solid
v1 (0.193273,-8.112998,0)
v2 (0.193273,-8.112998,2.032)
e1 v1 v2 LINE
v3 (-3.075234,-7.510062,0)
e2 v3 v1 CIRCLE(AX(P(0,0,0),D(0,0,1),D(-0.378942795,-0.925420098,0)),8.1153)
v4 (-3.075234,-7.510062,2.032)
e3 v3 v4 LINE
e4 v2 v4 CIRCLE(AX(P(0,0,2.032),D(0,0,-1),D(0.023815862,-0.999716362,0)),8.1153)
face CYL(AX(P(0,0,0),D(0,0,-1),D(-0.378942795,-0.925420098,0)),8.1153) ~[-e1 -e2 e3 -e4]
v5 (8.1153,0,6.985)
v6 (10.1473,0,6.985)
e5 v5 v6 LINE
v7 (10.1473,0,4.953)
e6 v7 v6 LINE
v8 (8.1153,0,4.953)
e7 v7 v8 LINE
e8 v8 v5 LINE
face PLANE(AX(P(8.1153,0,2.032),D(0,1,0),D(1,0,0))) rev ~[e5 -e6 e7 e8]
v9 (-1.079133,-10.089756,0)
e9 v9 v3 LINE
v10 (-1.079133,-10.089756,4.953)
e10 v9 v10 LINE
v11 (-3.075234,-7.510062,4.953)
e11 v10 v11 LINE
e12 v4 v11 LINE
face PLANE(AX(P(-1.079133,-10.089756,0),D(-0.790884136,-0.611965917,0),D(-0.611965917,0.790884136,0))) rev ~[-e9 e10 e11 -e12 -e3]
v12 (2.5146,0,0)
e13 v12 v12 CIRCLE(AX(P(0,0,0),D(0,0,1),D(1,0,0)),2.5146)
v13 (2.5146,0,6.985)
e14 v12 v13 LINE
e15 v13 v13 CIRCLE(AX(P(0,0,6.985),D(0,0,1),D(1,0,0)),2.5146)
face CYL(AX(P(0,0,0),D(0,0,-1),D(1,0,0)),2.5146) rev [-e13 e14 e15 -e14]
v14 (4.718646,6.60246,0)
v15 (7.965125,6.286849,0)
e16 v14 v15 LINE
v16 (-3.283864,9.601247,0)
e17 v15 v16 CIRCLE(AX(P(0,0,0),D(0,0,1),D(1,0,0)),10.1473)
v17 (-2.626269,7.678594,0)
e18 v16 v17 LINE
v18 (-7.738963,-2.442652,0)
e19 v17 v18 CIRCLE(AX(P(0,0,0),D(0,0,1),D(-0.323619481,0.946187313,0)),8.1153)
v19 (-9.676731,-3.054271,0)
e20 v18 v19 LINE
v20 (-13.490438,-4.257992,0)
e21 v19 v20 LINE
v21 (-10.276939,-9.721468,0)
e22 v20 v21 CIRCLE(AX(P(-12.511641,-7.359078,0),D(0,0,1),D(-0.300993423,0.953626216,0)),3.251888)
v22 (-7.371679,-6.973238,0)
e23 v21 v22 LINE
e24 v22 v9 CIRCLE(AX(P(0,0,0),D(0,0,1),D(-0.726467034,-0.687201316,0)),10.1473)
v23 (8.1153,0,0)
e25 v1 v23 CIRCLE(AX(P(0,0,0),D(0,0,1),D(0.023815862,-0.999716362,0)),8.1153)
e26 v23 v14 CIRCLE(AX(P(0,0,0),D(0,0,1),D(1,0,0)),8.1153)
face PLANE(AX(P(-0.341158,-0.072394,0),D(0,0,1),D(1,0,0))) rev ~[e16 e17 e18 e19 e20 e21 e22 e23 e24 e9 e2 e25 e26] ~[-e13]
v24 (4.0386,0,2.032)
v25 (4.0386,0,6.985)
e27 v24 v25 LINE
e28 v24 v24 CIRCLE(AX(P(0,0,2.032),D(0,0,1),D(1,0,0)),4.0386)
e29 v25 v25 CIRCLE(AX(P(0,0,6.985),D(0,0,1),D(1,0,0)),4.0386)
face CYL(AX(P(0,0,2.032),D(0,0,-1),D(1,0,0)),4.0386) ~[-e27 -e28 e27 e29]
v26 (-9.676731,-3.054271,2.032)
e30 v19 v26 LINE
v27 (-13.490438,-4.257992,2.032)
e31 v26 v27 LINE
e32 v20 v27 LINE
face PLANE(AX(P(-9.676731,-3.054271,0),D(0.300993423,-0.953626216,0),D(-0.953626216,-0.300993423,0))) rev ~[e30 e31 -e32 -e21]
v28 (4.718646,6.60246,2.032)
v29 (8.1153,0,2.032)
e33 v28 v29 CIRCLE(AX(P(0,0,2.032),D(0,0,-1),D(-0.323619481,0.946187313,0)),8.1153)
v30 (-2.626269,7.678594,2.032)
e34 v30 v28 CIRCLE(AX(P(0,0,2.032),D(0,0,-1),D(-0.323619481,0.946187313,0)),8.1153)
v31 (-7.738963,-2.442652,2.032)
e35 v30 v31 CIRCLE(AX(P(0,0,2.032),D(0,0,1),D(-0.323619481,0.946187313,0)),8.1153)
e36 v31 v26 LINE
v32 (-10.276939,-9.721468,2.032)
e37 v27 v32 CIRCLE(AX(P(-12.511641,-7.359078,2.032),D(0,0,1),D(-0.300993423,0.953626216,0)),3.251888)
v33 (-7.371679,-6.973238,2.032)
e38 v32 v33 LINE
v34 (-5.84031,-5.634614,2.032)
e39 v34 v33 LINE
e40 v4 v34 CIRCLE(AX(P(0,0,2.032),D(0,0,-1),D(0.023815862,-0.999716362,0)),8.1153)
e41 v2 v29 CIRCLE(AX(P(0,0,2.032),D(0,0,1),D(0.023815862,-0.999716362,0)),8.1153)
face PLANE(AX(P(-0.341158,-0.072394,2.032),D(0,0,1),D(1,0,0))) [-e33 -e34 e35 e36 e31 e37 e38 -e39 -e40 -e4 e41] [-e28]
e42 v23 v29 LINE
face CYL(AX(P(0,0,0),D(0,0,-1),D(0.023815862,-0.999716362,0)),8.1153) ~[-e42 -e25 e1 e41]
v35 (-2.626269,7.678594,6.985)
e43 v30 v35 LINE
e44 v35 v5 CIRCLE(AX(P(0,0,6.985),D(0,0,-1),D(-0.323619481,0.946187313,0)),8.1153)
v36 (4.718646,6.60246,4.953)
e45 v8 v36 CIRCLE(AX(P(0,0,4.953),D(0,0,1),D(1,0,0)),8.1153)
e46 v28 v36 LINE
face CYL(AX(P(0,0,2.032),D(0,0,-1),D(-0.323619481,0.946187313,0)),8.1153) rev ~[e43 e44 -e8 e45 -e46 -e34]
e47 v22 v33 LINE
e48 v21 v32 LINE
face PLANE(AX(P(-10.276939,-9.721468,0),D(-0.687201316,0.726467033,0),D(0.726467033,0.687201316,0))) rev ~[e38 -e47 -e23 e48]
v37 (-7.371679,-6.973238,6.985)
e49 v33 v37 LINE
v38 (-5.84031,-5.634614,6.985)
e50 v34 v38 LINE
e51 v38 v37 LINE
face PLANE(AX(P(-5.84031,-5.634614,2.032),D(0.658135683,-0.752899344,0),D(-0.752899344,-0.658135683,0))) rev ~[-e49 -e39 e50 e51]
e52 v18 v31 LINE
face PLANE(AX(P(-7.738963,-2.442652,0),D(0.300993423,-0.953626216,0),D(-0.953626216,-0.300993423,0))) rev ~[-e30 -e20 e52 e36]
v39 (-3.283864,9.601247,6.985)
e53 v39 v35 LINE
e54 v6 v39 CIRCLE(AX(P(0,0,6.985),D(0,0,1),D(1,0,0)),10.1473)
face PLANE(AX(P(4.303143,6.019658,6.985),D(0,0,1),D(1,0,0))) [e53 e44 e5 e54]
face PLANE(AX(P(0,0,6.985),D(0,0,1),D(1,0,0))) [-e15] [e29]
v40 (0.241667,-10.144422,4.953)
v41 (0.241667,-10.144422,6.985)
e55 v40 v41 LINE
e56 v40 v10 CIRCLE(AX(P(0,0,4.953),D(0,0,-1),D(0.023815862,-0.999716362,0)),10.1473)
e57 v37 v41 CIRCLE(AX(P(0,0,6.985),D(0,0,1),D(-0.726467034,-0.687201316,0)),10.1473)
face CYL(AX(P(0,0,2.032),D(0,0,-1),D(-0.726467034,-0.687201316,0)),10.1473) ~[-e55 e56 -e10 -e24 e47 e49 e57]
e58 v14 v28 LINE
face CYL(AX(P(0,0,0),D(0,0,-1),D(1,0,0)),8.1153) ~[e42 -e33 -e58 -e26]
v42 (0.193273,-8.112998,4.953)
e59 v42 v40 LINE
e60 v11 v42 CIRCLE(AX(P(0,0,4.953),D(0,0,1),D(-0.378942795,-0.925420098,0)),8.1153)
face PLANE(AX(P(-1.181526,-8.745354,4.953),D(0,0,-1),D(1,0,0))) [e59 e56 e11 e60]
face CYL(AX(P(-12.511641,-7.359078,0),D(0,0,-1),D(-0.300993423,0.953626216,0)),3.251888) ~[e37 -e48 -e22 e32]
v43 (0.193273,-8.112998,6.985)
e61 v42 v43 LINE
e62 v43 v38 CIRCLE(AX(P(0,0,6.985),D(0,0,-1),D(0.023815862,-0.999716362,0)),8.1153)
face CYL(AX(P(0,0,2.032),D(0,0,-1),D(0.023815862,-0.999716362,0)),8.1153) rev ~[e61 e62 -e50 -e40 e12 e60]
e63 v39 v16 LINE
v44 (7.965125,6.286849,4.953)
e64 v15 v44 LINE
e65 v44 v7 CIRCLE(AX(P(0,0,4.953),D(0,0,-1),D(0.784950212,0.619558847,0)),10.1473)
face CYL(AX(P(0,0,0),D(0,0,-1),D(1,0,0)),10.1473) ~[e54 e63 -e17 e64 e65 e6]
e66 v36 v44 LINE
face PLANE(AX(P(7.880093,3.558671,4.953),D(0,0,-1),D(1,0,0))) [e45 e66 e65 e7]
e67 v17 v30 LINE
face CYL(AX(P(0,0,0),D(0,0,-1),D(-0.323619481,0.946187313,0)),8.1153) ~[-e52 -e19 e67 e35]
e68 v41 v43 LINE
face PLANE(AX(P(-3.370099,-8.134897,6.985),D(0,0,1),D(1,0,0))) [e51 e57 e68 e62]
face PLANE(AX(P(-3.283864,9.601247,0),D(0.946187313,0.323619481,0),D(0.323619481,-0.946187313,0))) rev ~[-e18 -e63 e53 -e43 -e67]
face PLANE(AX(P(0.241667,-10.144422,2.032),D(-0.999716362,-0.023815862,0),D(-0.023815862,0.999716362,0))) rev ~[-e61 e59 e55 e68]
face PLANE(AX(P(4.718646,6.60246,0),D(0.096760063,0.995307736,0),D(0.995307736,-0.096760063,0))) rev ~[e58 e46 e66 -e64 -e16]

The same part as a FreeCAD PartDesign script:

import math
import FreeCAD as App
import Part
import Sketcher
from FreeCAD import Vector
Q = App.Units.Quantity

doc = App.newDocument("Part")
body = doc.addObject("PartDesign::Body", "Body")

# Sketch on XY plane
sketch1 = body.newObject("Sketcher::SketchObject", "Sketch")
sketch1.AttachmentSupport = (doc.getObject("XY_Plane"), [""])
sketch1.MapMode = "FlatFace"
sketch1.addGeometry(Part.ArcOfCircle(Part.Circle(Vector(0, 0, 0), Vector(0, 0, 1), 8.1153), math.radians(-88.635323), math.radians(0)), False)
sketch1.addGeometry(Part.LineSegment(Vector(8.1153, 0, 0), Vector(10.1473, 0, 0)), False)
sketch1.addGeometry(Part.ArcOfCircle(Part.Circle(Vector(0, 0, 0), Vector(0, 0, 1), 10.1473), math.radians(0), math.radians(108.881958)), False)
sketch1.addGeometry(Part.LineSegment(Vector(-3.283864, 9.601247, 0), Vector(-2.626269, 7.678594, 0)), False)
sketch1.addGeometry(Part.ArcOfCircle(Part.Circle(Vector(0, 0, 0), Vector(0, 0, 1), 8.1153), math.radians(108.881958), math.radians(197.51728)), False)
sketch1.addGeometry(Part.LineSegment(Vector(-7.738963, -2.442652, 0), Vector(-9.676731, -3.054271, 0)), False)
sketch1.addGeometry(Part.LineSegment(Vector(-9.676731, -3.054271, 0), Vector(-13.490438, -4.257992, 0)), False)
sketch1.addGeometry(Part.ArcOfCircle(Part.Circle(Vector(-12.511641, -7.359078, 0), Vector(0, 0, 1), 3.251888), math.radians(107.51728), math.radians(313.408975)), False)
sketch1.addGeometry(Part.LineSegment(Vector(-10.276939, -9.721468, 0), Vector(-7.371679, -6.973238, 0)), False)
sketch1.addGeometry(Part.ArcOfCircle(Part.Circle(Vector(0, 0, 0), Vector(0, 0, 1), 10.1473), math.radians(-136.591025), math.radians(-88.635323)), False)
sketch1.addGeometry(Part.LineSegment(Vector(0.241667, -10.144422, 0), Vector(0.193273, -8.112998, 0)), False)
sketch1.addGeometry(Part.Circle(Vector(0, 0, 0), Vector(0, 0, 1), 2.5146), False)
sketch1.addConstraint(Sketcher.Constraint("Coincident", 0, 2, 1, 1))
sketch1.addConstraint(Sketcher.Constraint("Coincident", 1, 2, 2, 1))
sketch1.addConstraint(Sketcher.Constraint("Coincident", 2, 2, 3, 1))
sketch1.addConstraint(Sketcher.Constraint("Coincident", 3, 2, 4, 1))
sketch1.addConstraint(Sketcher.Constraint("Coincident", 4, 2, 5, 1))
sketch1.addConstraint(Sketcher.Constraint("Coincident", 5, 2, 6, 1))
sketch1.addConstraint(Sketcher.Constraint("Tangent", 6, 2, 7, 1))
sketch1.addConstraint(Sketcher.Constraint("Tangent", 7, 2, 8, 1))
sketch1.addConstraint(Sketcher.Constraint("Coincident", 8, 2, 9, 1))
sketch1.addConstraint(Sketcher.Constraint("Coincident", 9, 2, 10, 1))
sketch1.addConstraint(Sketcher.Constraint("Coincident", 10, 2, 0, 1))
sketch1.addConstraint(Sketcher.Constraint("Horizontal", 1))
sketch1.addConstraint(Sketcher.Constraint("Coincident", 0, 3, -1, 1))
sketch1.addConstraint(Sketcher.Constraint("Coincident", 2, 3, -1, 1))
sketch1.addConstraint(Sketcher.Constraint("Coincident", 4, 3, -1, 1))
sketch1.addConstraint(Sketcher.Constraint("Coincident", 9, 3, -1, 1))
sketch1.addConstraint(Sketcher.Constraint("Coincident", 11, 3, -1, 1))
sketch1.addConstraint(Sketcher.Constraint("Equal", 0, 4))
sketch1.addConstraint(Sketcher.Constraint("Equal", 2, 9))
sketch1.addConstraint(Sketcher.Constraint("PointOnObject", 0, 2, -1))
sketch1.addConstraint(Sketcher.Constraint("Parallel", 5, 6))
sketch1.addConstraint(Sketcher.Constraint("Equal", 3, 5))
sketch1.addConstraint(Sketcher.Constraint("Equal", 6, 8))
sketch1.addConstraint(Sketcher.Constraint("Diameter", 11, Q("0.198 in")))
sketch1.addConstraint(Sketcher.Constraint("DistanceX", 1, 1, 1, 2, Q("0.08 in")))
sketch1.addConstraint(Sketcher.Constraint("Radius", 0, Q("0.3195 in")))
sketch1.addConstraint(Sketcher.Constraint("Radius", 7, Q("3.251888 mm")))
sketch1.addConstraint(Sketcher.Constraint("DistanceY", 10, 2, -1, 1, Q("8.112998 mm")))
sketch1.addConstraint(Sketcher.Constraint("DistanceX", 7, 3, 7, 2, Q("2.234702 mm")))
sketch1.addConstraint(Sketcher.Constraint("DistanceX", 6, 2, 7, 2, Q("3.213499 mm")))
sketch1.addConstraint(Sketcher.Constraint("DistanceX", 7, 3, -1, 1, Q("12.511641 mm")))
sketch1.addConstraint(Sketcher.Constraint("DistanceX", 3, 2, -1, 1, Q("2.626269 mm")))
sketch1.addConstraint(Sketcher.Constraint("DistanceY", 9, 2, -1, 1, Q("10.144422 mm")))
sketch1.addConstraint(Sketcher.Constraint("DistanceX", 2, 2, -1, 1, Q("3.283864 mm")))
pad1 = body.newObject("PartDesign::Pad", "Pad")
pad1.Profile = sketch1
pad1.Length = Q("0.08 in")

# Sketch on XY plane
sketch2 = body.newObject("Sketcher::SketchObject", "Sketch001")
sketch2.AttachmentSupport = (doc.getObject("XY_Plane"), [""])
sketch2.MapMode = "FlatFace"
sketch2.AttachmentOffset = App.Placement(Vector(0, 0, 0.08 * 25.4), App.Rotation())
sketch2.addGeometry(Part.LineSegment(Vector(-5.84031, -5.634614, 0), Vector(-7.371679, -6.973238, 0)), False)
sketch2.addGeometry(Part.ArcOfCircle(Part.Circle(Vector(0, 0, 0), Vector(0, 0, 1), 10.1473), math.radians(-136.591025), math.radians(-88.635323)), False)
sketch2.addGeometry(Part.LineSegment(Vector(0.241667, -10.144422, 0), Vector(0.193273, -8.112998, 0)), False)
sketch2.addGeometry(Part.ArcOfCircle(Part.Circle(Vector(0, 0, 0), Vector(0, 0, 1), 8.1153), math.radians(-136.026953), math.radians(-88.635323)), False)
sketch2.addGeometry(Part.Circle(Vector(0, 0, 0), Vector(0, 0, 1), 4.0386), False)
sketch2.addGeometry(Part.Circle(Vector(0, 0, 0), Vector(0, 0, 1), 2.5146), False)
sketch2.addGeometry(Part.ArcOfCircle(Part.Circle(Vector(0, 0, 0), Vector(0, 0, 1), 8.1153), math.radians(0), math.radians(108.881958)), False)
sketch2.addGeometry(Part.LineSegment(Vector(8.1153, 0, 0), Vector(10.1473, 0, 0)), False)
sketch2.addGeometry(Part.ArcOfCircle(Part.Circle(Vector(0, 0, 0), Vector(0, 0, 1), 10.1473), math.radians(0), math.radians(108.881958)), False)
sketch2.addGeometry(Part.LineSegment(Vector(-3.283864, 9.601247, 0), Vector(-2.626269, 7.678594, 0)), False)
sketch2.addConstraint(Sketcher.Constraint("Coincident", 0, 2, 1, 1))
sketch2.addConstraint(Sketcher.Constraint("Coincident", 1, 2, 2, 1))
sketch2.addConstraint(Sketcher.Constraint("Coincident", 2, 2, 3, 2))
sketch2.addConstraint(Sketcher.Constraint("Coincident", 3, 1, 0, 1))
sketch2.addConstraint(Sketcher.Constraint("Coincident", 6, 1, 7, 1))
sketch2.addConstraint(Sketcher.Constraint("Coincident", 7, 2, 8, 1))
sketch2.addConstraint(Sketcher.Constraint("Coincident", 8, 2, 9, 1))
sketch2.addConstraint(Sketcher.Constraint("Coincident", 9, 2, 6, 2))
sketch2.addConstraint(Sketcher.Constraint("Horizontal", 7))
sketch2.addConstraint(Sketcher.Constraint("Coincident", 1, 3, -1, 1))
sketch2.addConstraint(Sketcher.Constraint("Coincident", 3, 3, -1, 1))
sketch2.addConstraint(Sketcher.Constraint("Coincident", 4, 3, -1, 1))
sketch2.addConstraint(Sketcher.Constraint("Coincident", 5, 3, -1, 1))
sketch2.addConstraint(Sketcher.Constraint("Coincident", 6, 3, -1, 1))
sketch2.addConstraint(Sketcher.Constraint("Coincident", 8, 3, -1, 1))
sketch2.addConstraint(Sketcher.Constraint("Equal", 3, 6))
sketch2.addConstraint(Sketcher.Constraint("Equal", 1, 8))
sketch2.addConstraint(Sketcher.Constraint("PointOnObject", 6, 1, -1))
sketch2.addConstraint(Sketcher.Constraint("Diameter", 4, Q("0.318 in")))
sketch2.addConstraint(Sketcher.Constraint("Diameter", 5, Q("0.198 in")))
sketch2.addConstraint(Sketcher.Constraint("DistanceX", 7, 1, 7, 2, Q("0.08 in")))
sketch2.addConstraint(Sketcher.Constraint("Radius", 1, Q("0.3995 in")))
sketch2.addConstraint(Sketcher.Constraint("DistanceY", 2, 2, -1, 1, Q("8.112998 mm")))
sketch2.addConstraint(Sketcher.Constraint("DistanceX", 0, 2, -1, 1, Q("7.371679 mm")))
sketch2.addConstraint(Sketcher.Constraint("DistanceY", 1, 2, -1, 1, Q("10.144422 mm")))
sketch2.addConstraint(Sketcher.Constraint("DistanceX", 3, 1, -1, 1, Q("5.84031 mm")))
sketch2.addConstraint(Sketcher.Constraint("DistanceX", 9, 2, -1, 1, Q("2.626269 mm")))
sketch2.addConstraint(Sketcher.Constraint("DistanceX", 8, 2, -1, 1, Q("3.283864 mm")))
pad2 = body.newObject("PartDesign::Pad", "Pad001")
pad2.Profile = sketch2
pad2.Length = Q("0.195 in")

# Sketch on XY plane
sketch3 = body.newObject("Sketcher::SketchObject", "Sketch002")
sketch3.AttachmentSupport = (doc.getObject("XY_Plane"), [""])
sketch3.MapMode = "FlatFace"
sketch3.addGeometry(Part.ArcOfCircle(Part.Circle(Vector(0, 0, 0), Vector(0, 0, 1), 8.1153), math.radians(-112.268212), math.radians(-88.635323)), False)
sketch3.addGeometry(Part.LineSegment(Vector(0.193273, -8.112998, 0), Vector(0.241667, -10.144422, 0)), False)
sketch3.addGeometry(Part.ArcOfCircle(Part.Circle(Vector(0, 0, 0), Vector(0, 0, 1), 10.1473), math.radians(-96.104769), math.radians(-88.635323)), False)
sketch3.addGeometry(Part.LineSegment(Vector(-1.079133, -10.089756, 0), Vector(-3.075234, -7.510062, 0)), False)
sketch3.addGeometry(Part.ArcOfCircle(Part.Circle(Vector(0, 0, 0), Vector(0, 0, 1), 10.1473), math.radians(0), math.radians(38.283926)), False)
sketch3.addGeometry(Part.LineSegment(Vector(10.1473, 0, 0), Vector(8.1153, 0, 0)), False)
sketch3.addGeometry(Part.ArcOfCircle(Part.Circle(Vector(0, 0, 0), Vector(0, 0, 1), 8.1153), math.radians(0), math.radians(54.447369)), False)
sketch3.addGeometry(Part.LineSegment(Vector(4.718646, 6.60246, 0), Vector(7.965125, 6.286849, 0)), False)
sketch3.addConstraint(Sketcher.Constraint("Coincident", 0, 2, 1, 1))
sketch3.addConstraint(Sketcher.Constraint("Coincident", 1, 2, 2, 2))
sketch3.addConstraint(Sketcher.Constraint("Coincident", 2, 1, 3, 1))
sketch3.addConstraint(Sketcher.Constraint("Coincident", 3, 2, 0, 1))
sketch3.addConstraint(Sketcher.Constraint("Coincident", 4, 1, 5, 1))
sketch3.addConstraint(Sketcher.Constraint("Coincident", 5, 2, 6, 1))
sketch3.addConstraint(Sketcher.Constraint("Coincident", 6, 2, 7, 1))
sketch3.addConstraint(Sketcher.Constraint("Coincident", 7, 2, 4, 2))
sketch3.addConstraint(Sketcher.Constraint("Horizontal", 5))
sketch3.addConstraint(Sketcher.Constraint("Coincident", 0, 3, -1, 1))
sketch3.addConstraint(Sketcher.Constraint("Coincident", 2, 3, -1, 1))
sketch3.addConstraint(Sketcher.Constraint("Coincident", 4, 3, -1, 1))
sketch3.addConstraint(Sketcher.Constraint("Coincident", 6, 3, -1, 1))
sketch3.addConstraint(Sketcher.Constraint("Equal", 2, 4))
sketch3.addConstraint(Sketcher.Constraint("Equal", 0, 6))
sketch3.addConstraint(Sketcher.Constraint("PointOnObject", 4, 1, -1))
sketch3.addConstraint(Sketcher.Constraint("Equal", 3, 7))
sketch3.addConstraint(Sketcher.Constraint("DistanceX", 5, 2, 5, 1, Q("0.08 in")))
sketch3.addConstraint(Sketcher.Constraint("Radius", 0, Q("0.3195 in")))
sketch3.addConstraint(Sketcher.Constraint("DistanceX", 2, 1, 1, 2, Q("0.052 in")))
sketch3.addConstraint(Sketcher.Constraint("DistanceY", 0, 2, -1, 1, Q("8.112998 mm")))
sketch3.addConstraint(Sketcher.Constraint("DistanceX", 3, 2, 2, 1, Q("1.996101 mm")))
sketch3.addConstraint(Sketcher.Constraint("DistanceY", 1, 2, -1, 1, Q("10.144422 mm")))
sketch3.addConstraint(Sketcher.Constraint("DistanceY", -1, 1, 6, 2, Q("6.60246 mm")))
pocket1 = body.newObject("PartDesign::Pocket", "Pocket")
pocket1.Profile = sketch3
pocket1.Length = Q("0.195 in")
pocket1.Reversed = True

doc.recompute()
